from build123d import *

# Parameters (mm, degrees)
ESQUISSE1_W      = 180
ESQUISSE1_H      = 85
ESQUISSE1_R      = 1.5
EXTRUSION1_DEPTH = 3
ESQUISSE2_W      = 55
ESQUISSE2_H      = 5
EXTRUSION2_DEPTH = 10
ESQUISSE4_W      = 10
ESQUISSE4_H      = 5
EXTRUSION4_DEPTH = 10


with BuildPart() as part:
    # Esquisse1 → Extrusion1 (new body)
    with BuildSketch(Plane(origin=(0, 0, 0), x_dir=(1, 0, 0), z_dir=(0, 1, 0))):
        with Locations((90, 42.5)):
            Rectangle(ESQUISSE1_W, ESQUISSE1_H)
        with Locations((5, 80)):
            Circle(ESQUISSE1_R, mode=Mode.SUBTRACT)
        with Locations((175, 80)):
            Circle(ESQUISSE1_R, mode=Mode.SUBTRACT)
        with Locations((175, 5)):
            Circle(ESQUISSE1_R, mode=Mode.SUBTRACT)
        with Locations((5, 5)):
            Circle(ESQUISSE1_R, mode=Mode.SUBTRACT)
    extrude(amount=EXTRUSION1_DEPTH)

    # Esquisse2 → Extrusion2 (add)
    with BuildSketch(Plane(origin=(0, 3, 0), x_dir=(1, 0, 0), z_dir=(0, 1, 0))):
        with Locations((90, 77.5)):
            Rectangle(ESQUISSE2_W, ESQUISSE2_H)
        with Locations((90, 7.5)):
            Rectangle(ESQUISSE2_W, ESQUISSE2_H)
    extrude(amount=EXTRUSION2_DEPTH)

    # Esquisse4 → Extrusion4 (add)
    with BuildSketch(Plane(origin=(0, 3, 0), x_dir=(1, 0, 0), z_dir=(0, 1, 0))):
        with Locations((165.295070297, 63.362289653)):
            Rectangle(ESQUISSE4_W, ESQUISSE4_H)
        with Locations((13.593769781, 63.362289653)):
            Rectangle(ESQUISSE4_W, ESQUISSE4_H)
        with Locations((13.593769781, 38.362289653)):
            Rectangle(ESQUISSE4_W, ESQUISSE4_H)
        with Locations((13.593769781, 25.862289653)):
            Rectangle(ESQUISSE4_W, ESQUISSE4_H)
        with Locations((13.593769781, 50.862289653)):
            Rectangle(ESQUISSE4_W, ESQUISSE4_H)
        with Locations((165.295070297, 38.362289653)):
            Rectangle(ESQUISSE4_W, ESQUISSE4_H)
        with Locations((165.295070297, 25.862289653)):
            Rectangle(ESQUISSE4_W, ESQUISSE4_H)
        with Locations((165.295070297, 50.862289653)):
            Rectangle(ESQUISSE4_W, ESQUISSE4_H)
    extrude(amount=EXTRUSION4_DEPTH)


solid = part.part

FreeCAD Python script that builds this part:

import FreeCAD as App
import Part
import Sketcher


def add_polygon(sketch, points):
    """Adds a closed chain of lines whose ends are joined by coincident constraints."""
    first, n = sketch.GeometryCount, len(points)
    for a, b in zip(points, points[1:] + points[:1]):
        sketch.addGeometry(Part.LineSegment(App.Vector(*a, 0), App.Vector(*b, 0)), False)
    for i in range(n):
        sketch.addConstraint(Sketcher.Constraint("Coincident", first + i, 2, first + (i + 1) % n, 1))

doc = App.newDocument("Part")
params = doc.addObject("Spreadsheet::Sheet", "Params")
for row, (alias, value) in enumerate([
    ("sketch1_diameter", "3 mm"),
    ("sketch1_width", "180 mm"),
    ("sketch1_height", "85 mm"),
    ("pad1_length", "3 mm"),
    ("sketch2_width", "55 mm"),
    ("sketch2_height", "5 mm"),
    ("pad2_length", "10 mm"),
    ("sketch3_width", "10 mm"),
    ("sketch3_height", "5 mm"),
    ("pad3_length", "10 mm"),
], start=1):
    params.set(f"A{row}", alias)
    params.set(f"B{row}", "=" + value)
    params.setAlias(f"B{row}", alias)

body = doc.addObject("PartDesign::Body", "Body")

# Sketch on XZ plane
sketch1 = doc.addObject("Sketcher::SketchObject", "Sketch")
body.addObject(sketch1)
sketch1.AttachmentSupport = (doc.XZ_Plane, [""])
sketch1.MapMode = "FlatFace"
add_polygon(sketch1, [(0, -85), (0, 0), (180, 0), (180, -85)])  # lines 0-3
sketch1.addGeometry(Part.Circle(App.Vector(5, -5, 0), App.Vector(0, 0, 1), 1.5), False)  # 4
sketch1.addGeometry(Part.Circle(App.Vector(175, -5, 0), App.Vector(0, 0, 1), 1.5), False)  # 5
sketch1.addGeometry(Part.Circle(App.Vector(5, -80, 0), App.Vector(0, 0, 1), 1.5), False)  # 6
sketch1.addGeometry(Part.Circle(App.Vector(175, -80, 0), App.Vector(0, 0, 1), 1.5), False)  # 7
sketch1.addConstraint([
    Sketcher.Constraint("Vertical", 0),
    Sketcher.Constraint("Horizontal", 1),
    Sketcher.Constraint("Vertical", 2),
    Sketcher.Constraint("Horizontal", 3),
    Sketcher.Constraint("Coincident", 0, 2, -1, 1),
    Sketcher.Constraint("Equal", 4, 5),
    Sketcher.Constraint("Equal", 5, 6),
    Sketcher.Constraint("Equal", 6, 7),
    Sketcher.Constraint("Horizontal", 4, 3, 5, 3),
    Sketcher.Constraint("Horizontal", 6, 3, 7, 3),
    Sketcher.Constraint("Vertical", 4, 3, 6, 3),
    Sketcher.Constraint("Vertical", 5, 3, 7, 3),
    Sketcher.Constraint("Diameter", 4, 3.0),
    Sketcher.Constraint("DistanceX", 1, 1, 1, 2, 180.0),
    Sketcher.Constraint("DistanceY", 0, 1, 0, 2, 85.0),
    Sketcher.Constraint("DistanceX", -1, 1, 4, 3, 5.0),
    Sketcher.Constraint("DistanceY", 4, 3, -1, 1, 5.0),
    Sketcher.Constraint("DistanceX", -1, 1, 5, 3, 175.0),
    Sketcher.Constraint("DistanceY", 6, 3, -1, 1, 80.0),
])
sketch1.setExpression("Constraints[16]", "Params.sketch1_diameter")
sketch1.setExpression("Constraints[17]", "Params.sketch1_width")
sketch1.setExpression("Constraints[18]", "Params.sketch1_height")
pad1 = doc.addObject("PartDesign::Pad", "Pad")
body.addObject(pad1)
pad1.Profile = sketch1
pad1.setExpression("Length", "Params.pad1_length")
pad1.Reversed = True

# Sketch on XZ plane
sketch2 = doc.addObject("Sketcher::SketchObject", "Sketch001")
body.addObject(sketch2)
sketch2.AttachmentSupport = (doc.XZ_Plane, [""])
sketch2.MapMode = "FlatFace"
sketch2.AttachmentOffset = App.Placement(App.Vector(0, 0, -3), App.Rotation())
add_polygon(sketch2, [(62, -80), (62, -75), (118, -75), (118, -80)])  # lines 0-3
add_polygon(sketch2, [(62, -10), (62, -5), (118, -5), (118, -10)])  # lines 4-7
sketch2.addConstraint([
    Sketcher.Constraint("Vertical", 0),
    Sketcher.Constraint("Horizontal", 1),
    Sketcher.Constraint("Vertical", 2),
    Sketcher.Constraint("Horizontal", 3),
    Sketcher.Constraint("Vertical", 4),
    Sketcher.Constraint("Horizontal", 5),
    Sketcher.Constraint("Vertical", 6),
    Sketcher.Constraint("Horizontal", 7),
    Sketcher.Constraint("Vertical", 3, 2, 4, 2),
    Sketcher.Constraint("Vertical", 2, 2, 5, 2),
    Sketcher.Constraint("Equal", 2, 4),
    Sketcher.Constraint("DistanceX", 1, 1, 1, 2, 55.0),
    Sketcher.Constraint("DistanceY", 0, 1, 0, 2, 5.0),
    Sketcher.Constraint("DistanceY", 0, 2, -1, 1, 75.0),
    Sketcher.Constraint("DistanceY", 4, 2, -1, 1, 5.0),
    Sketcher.Constraint("DistanceX", -1, 1, 0, 2, 62.5),
])
sketch2.setExpression("Constraints[19]", "Params.sketch2_width")
sketch2.setExpression("Constraints[20]", "Params.sketch2_height")
pad2 = doc.addObject("PartDesign::Pad", "Pad001")
body.addObject(pad2)
pad2.Profile = sketch2
pad2.setExpression("Length", "Params.pad2_length")
pad2.Reversed = True

# Sketch on XZ plane
sketch3 = doc.addObject("Sketcher::SketchObject", "Sketch002")
body.addObject(sketch3)
sketch3.AttachmentSupport = (doc.XZ_Plane, [""])
sketch3.MapMode = "FlatFace"
sketch3.AttachmentOffset = App.Placement(App.Vector(0, 0, -3), App.Rotation())
add_polygon(sketch3, [(160, -66), (160, -61), (170, -61), (170, -66)])  # lines 0-3
add_polygon(sketch3, [(9, -66), (9, -61), (19, -61), (19, -66)])  # lines 4-7
add_polygon(sketch3, [(9, -41), (9, -36), (19, -36), (19, -41)])  # lines 8-11
add_polygon(sketch3, [(9, -28), (9, -23), (19, -23), (19, -28)])  # lines 12-15
add_polygon(sketch3, [(9, -53), (9, -48), (19, -48), (19, -53)])  # lines 16-19
add_polygon(sketch3, [(160, -41), (160, -36), (170, -36), (170, -41)])  # lines 20-23
add_polygon(sketch3, [(160, -28), (160, -23), (170, -23), (170, -28)])  # lines 24-27
add_polygon(sketch3, [(160, -53), (160, -48), (170, -48), (170, -53)])  # lines 28-31
sketch3.addConstraint([
    Sketcher.Constraint("Vertical", 0),
    Sketcher.Constraint("Horizontal", 1),
    Sketcher.Constraint("Vertical", 2),
    Sketcher.Constraint("Horizontal", 3),
    Sketcher.Constraint("Vertical", 4),
    Sketcher.Constraint("Horizontal", 5),
    Sketcher.Constraint("Vertical", 6),
    Sketcher.Constraint("Horizontal", 7),
    Sketcher.Constraint("Vertical", 8),
    Sketcher.Constraint("Horizontal", 9),
    Sketcher.Constraint("Vertical", 10),
    Sketcher.Constraint("Horizontal", 11),
    Sketcher.Constraint("Vertical", 12),
    Sketcher.Constraint("Horizontal", 13),
    Sketcher.Constraint("Vertical", 14),
    Sketcher.Constraint("Horizontal", 15),
    Sketcher.Constraint("Vertical", 16),
    Sketcher.Constraint("Horizontal", 17),
    Sketcher.Constraint("Vertical", 18),
    Sketcher.Constraint("Horizontal", 19),
    Sketcher.Constraint("Vertical", 20),
    Sketcher.Constraint("Horizontal", 21),
    Sketcher.Constraint("Vertical", 22),
    Sketcher.Constraint("Horizontal", 23),
    Sketcher.Constraint("Vertical", 24),
    Sketcher.Constraint("Horizontal", 25),
    Sketcher.Constraint("Vertical", 26),
    Sketcher.Constraint("Horizontal", 27),
    Sketcher.Constraint("Vertical", 28),
    Sketcher.Constraint("Horizontal", 29),
    Sketcher.Constraint("Vertical", 30),
    Sketcher.Constraint("Horizontal", 31),
    Sketcher.Constraint("Horizontal", 1, 2, 4, 2),
    Sketcher.Constraint("Horizontal", 3, 2, 6, 2),
    Sketcher.Constraint("Horizontal", 9, 2, 20, 2),
    Sketcher.Constraint("Horizontal", 11, 2, 22, 2),
    Sketcher.Constraint("Horizontal", 13, 2, 24, 2),
    Sketcher.Constraint("Horizontal", 15, 2, 26, 2),
    Sketcher.Constraint("Horizontal", 17, 2, 28, 2),
    Sketcher.Constraint("Horizontal", 19, 2, 30, 2),
    Sketcher.Constraint("Vertical", 7, 2, 8, 2),
    Sketcher.Constraint("Vertical", 6, 2, 9, 2),
    Sketcher.Constraint("Vertical", 11, 2, 12, 2),
    Sketcher.Constraint("Vertical", 10, 2, 13, 2),
    Sketcher.Constraint("Vertical", 15, 2, 16, 2),
    Sketcher.Constraint("Vertical", 14, 2, 17, 2),
    Sketcher.Constraint("Vertical", 3, 2, 20, 2),
    Sketcher.Constraint("Vertical", 2, 2, 21, 2),
    Sketcher.Constraint("Vertical", 23, 2, 24, 2),
    Sketcher.Constraint("Vertical", 22, 2, 25, 2),
    Sketcher.Constraint("Vertical", 27, 2, 28, 2),
    Sketcher.Constraint("Vertical", 26, 2, 29, 2),
    Sketcher.Constraint("Equal", 3, 5),
    Sketcher.Constraint("Equal", 6, 8),
    Sketcher.Constraint("Equal", 10, 12),
    Sketcher.Constraint("Equal", 14, 16),
    Sketcher.Constraint("DistanceX", 1, 1, 1, 2, 10.0),
    Sketcher.Constraint("DistanceY", 0, 1, 0, 2, 5.0),
    Sketcher.Constraint("DistanceY", 4, 2, 8, 2, 25.0),
    Sketcher.Constraint("DistanceY", 8, 2, 12, 2, 12.5),
    Sketcher.Constraint("DistanceY", 16, 2, 11, 2, 7.5),
    Sketcher.Constraint("DistanceX", 4, 2, 0, 2, 151.701301),
    Sketcher.Constraint("DistanceX", -1, 1, 0, 2, 160.29507),
    Sketcher.Constraint("DistanceY", 0, 2, -1, 1, 60.86229),
])
sketch3.setExpression("Constraints[88]", "Params.sketch3_width")
sketch3.setExpression("Constraints[89]", "Params.sketch3_height")
pad3 = doc.addObject("PartDesign::Pad", "Pad002")
body.addObject(pad3)
pad3.Profile = sketch3
pad3.setExpression("Length", "Params.pad3_length")
pad3.Reversed = True

doc.recompute()
